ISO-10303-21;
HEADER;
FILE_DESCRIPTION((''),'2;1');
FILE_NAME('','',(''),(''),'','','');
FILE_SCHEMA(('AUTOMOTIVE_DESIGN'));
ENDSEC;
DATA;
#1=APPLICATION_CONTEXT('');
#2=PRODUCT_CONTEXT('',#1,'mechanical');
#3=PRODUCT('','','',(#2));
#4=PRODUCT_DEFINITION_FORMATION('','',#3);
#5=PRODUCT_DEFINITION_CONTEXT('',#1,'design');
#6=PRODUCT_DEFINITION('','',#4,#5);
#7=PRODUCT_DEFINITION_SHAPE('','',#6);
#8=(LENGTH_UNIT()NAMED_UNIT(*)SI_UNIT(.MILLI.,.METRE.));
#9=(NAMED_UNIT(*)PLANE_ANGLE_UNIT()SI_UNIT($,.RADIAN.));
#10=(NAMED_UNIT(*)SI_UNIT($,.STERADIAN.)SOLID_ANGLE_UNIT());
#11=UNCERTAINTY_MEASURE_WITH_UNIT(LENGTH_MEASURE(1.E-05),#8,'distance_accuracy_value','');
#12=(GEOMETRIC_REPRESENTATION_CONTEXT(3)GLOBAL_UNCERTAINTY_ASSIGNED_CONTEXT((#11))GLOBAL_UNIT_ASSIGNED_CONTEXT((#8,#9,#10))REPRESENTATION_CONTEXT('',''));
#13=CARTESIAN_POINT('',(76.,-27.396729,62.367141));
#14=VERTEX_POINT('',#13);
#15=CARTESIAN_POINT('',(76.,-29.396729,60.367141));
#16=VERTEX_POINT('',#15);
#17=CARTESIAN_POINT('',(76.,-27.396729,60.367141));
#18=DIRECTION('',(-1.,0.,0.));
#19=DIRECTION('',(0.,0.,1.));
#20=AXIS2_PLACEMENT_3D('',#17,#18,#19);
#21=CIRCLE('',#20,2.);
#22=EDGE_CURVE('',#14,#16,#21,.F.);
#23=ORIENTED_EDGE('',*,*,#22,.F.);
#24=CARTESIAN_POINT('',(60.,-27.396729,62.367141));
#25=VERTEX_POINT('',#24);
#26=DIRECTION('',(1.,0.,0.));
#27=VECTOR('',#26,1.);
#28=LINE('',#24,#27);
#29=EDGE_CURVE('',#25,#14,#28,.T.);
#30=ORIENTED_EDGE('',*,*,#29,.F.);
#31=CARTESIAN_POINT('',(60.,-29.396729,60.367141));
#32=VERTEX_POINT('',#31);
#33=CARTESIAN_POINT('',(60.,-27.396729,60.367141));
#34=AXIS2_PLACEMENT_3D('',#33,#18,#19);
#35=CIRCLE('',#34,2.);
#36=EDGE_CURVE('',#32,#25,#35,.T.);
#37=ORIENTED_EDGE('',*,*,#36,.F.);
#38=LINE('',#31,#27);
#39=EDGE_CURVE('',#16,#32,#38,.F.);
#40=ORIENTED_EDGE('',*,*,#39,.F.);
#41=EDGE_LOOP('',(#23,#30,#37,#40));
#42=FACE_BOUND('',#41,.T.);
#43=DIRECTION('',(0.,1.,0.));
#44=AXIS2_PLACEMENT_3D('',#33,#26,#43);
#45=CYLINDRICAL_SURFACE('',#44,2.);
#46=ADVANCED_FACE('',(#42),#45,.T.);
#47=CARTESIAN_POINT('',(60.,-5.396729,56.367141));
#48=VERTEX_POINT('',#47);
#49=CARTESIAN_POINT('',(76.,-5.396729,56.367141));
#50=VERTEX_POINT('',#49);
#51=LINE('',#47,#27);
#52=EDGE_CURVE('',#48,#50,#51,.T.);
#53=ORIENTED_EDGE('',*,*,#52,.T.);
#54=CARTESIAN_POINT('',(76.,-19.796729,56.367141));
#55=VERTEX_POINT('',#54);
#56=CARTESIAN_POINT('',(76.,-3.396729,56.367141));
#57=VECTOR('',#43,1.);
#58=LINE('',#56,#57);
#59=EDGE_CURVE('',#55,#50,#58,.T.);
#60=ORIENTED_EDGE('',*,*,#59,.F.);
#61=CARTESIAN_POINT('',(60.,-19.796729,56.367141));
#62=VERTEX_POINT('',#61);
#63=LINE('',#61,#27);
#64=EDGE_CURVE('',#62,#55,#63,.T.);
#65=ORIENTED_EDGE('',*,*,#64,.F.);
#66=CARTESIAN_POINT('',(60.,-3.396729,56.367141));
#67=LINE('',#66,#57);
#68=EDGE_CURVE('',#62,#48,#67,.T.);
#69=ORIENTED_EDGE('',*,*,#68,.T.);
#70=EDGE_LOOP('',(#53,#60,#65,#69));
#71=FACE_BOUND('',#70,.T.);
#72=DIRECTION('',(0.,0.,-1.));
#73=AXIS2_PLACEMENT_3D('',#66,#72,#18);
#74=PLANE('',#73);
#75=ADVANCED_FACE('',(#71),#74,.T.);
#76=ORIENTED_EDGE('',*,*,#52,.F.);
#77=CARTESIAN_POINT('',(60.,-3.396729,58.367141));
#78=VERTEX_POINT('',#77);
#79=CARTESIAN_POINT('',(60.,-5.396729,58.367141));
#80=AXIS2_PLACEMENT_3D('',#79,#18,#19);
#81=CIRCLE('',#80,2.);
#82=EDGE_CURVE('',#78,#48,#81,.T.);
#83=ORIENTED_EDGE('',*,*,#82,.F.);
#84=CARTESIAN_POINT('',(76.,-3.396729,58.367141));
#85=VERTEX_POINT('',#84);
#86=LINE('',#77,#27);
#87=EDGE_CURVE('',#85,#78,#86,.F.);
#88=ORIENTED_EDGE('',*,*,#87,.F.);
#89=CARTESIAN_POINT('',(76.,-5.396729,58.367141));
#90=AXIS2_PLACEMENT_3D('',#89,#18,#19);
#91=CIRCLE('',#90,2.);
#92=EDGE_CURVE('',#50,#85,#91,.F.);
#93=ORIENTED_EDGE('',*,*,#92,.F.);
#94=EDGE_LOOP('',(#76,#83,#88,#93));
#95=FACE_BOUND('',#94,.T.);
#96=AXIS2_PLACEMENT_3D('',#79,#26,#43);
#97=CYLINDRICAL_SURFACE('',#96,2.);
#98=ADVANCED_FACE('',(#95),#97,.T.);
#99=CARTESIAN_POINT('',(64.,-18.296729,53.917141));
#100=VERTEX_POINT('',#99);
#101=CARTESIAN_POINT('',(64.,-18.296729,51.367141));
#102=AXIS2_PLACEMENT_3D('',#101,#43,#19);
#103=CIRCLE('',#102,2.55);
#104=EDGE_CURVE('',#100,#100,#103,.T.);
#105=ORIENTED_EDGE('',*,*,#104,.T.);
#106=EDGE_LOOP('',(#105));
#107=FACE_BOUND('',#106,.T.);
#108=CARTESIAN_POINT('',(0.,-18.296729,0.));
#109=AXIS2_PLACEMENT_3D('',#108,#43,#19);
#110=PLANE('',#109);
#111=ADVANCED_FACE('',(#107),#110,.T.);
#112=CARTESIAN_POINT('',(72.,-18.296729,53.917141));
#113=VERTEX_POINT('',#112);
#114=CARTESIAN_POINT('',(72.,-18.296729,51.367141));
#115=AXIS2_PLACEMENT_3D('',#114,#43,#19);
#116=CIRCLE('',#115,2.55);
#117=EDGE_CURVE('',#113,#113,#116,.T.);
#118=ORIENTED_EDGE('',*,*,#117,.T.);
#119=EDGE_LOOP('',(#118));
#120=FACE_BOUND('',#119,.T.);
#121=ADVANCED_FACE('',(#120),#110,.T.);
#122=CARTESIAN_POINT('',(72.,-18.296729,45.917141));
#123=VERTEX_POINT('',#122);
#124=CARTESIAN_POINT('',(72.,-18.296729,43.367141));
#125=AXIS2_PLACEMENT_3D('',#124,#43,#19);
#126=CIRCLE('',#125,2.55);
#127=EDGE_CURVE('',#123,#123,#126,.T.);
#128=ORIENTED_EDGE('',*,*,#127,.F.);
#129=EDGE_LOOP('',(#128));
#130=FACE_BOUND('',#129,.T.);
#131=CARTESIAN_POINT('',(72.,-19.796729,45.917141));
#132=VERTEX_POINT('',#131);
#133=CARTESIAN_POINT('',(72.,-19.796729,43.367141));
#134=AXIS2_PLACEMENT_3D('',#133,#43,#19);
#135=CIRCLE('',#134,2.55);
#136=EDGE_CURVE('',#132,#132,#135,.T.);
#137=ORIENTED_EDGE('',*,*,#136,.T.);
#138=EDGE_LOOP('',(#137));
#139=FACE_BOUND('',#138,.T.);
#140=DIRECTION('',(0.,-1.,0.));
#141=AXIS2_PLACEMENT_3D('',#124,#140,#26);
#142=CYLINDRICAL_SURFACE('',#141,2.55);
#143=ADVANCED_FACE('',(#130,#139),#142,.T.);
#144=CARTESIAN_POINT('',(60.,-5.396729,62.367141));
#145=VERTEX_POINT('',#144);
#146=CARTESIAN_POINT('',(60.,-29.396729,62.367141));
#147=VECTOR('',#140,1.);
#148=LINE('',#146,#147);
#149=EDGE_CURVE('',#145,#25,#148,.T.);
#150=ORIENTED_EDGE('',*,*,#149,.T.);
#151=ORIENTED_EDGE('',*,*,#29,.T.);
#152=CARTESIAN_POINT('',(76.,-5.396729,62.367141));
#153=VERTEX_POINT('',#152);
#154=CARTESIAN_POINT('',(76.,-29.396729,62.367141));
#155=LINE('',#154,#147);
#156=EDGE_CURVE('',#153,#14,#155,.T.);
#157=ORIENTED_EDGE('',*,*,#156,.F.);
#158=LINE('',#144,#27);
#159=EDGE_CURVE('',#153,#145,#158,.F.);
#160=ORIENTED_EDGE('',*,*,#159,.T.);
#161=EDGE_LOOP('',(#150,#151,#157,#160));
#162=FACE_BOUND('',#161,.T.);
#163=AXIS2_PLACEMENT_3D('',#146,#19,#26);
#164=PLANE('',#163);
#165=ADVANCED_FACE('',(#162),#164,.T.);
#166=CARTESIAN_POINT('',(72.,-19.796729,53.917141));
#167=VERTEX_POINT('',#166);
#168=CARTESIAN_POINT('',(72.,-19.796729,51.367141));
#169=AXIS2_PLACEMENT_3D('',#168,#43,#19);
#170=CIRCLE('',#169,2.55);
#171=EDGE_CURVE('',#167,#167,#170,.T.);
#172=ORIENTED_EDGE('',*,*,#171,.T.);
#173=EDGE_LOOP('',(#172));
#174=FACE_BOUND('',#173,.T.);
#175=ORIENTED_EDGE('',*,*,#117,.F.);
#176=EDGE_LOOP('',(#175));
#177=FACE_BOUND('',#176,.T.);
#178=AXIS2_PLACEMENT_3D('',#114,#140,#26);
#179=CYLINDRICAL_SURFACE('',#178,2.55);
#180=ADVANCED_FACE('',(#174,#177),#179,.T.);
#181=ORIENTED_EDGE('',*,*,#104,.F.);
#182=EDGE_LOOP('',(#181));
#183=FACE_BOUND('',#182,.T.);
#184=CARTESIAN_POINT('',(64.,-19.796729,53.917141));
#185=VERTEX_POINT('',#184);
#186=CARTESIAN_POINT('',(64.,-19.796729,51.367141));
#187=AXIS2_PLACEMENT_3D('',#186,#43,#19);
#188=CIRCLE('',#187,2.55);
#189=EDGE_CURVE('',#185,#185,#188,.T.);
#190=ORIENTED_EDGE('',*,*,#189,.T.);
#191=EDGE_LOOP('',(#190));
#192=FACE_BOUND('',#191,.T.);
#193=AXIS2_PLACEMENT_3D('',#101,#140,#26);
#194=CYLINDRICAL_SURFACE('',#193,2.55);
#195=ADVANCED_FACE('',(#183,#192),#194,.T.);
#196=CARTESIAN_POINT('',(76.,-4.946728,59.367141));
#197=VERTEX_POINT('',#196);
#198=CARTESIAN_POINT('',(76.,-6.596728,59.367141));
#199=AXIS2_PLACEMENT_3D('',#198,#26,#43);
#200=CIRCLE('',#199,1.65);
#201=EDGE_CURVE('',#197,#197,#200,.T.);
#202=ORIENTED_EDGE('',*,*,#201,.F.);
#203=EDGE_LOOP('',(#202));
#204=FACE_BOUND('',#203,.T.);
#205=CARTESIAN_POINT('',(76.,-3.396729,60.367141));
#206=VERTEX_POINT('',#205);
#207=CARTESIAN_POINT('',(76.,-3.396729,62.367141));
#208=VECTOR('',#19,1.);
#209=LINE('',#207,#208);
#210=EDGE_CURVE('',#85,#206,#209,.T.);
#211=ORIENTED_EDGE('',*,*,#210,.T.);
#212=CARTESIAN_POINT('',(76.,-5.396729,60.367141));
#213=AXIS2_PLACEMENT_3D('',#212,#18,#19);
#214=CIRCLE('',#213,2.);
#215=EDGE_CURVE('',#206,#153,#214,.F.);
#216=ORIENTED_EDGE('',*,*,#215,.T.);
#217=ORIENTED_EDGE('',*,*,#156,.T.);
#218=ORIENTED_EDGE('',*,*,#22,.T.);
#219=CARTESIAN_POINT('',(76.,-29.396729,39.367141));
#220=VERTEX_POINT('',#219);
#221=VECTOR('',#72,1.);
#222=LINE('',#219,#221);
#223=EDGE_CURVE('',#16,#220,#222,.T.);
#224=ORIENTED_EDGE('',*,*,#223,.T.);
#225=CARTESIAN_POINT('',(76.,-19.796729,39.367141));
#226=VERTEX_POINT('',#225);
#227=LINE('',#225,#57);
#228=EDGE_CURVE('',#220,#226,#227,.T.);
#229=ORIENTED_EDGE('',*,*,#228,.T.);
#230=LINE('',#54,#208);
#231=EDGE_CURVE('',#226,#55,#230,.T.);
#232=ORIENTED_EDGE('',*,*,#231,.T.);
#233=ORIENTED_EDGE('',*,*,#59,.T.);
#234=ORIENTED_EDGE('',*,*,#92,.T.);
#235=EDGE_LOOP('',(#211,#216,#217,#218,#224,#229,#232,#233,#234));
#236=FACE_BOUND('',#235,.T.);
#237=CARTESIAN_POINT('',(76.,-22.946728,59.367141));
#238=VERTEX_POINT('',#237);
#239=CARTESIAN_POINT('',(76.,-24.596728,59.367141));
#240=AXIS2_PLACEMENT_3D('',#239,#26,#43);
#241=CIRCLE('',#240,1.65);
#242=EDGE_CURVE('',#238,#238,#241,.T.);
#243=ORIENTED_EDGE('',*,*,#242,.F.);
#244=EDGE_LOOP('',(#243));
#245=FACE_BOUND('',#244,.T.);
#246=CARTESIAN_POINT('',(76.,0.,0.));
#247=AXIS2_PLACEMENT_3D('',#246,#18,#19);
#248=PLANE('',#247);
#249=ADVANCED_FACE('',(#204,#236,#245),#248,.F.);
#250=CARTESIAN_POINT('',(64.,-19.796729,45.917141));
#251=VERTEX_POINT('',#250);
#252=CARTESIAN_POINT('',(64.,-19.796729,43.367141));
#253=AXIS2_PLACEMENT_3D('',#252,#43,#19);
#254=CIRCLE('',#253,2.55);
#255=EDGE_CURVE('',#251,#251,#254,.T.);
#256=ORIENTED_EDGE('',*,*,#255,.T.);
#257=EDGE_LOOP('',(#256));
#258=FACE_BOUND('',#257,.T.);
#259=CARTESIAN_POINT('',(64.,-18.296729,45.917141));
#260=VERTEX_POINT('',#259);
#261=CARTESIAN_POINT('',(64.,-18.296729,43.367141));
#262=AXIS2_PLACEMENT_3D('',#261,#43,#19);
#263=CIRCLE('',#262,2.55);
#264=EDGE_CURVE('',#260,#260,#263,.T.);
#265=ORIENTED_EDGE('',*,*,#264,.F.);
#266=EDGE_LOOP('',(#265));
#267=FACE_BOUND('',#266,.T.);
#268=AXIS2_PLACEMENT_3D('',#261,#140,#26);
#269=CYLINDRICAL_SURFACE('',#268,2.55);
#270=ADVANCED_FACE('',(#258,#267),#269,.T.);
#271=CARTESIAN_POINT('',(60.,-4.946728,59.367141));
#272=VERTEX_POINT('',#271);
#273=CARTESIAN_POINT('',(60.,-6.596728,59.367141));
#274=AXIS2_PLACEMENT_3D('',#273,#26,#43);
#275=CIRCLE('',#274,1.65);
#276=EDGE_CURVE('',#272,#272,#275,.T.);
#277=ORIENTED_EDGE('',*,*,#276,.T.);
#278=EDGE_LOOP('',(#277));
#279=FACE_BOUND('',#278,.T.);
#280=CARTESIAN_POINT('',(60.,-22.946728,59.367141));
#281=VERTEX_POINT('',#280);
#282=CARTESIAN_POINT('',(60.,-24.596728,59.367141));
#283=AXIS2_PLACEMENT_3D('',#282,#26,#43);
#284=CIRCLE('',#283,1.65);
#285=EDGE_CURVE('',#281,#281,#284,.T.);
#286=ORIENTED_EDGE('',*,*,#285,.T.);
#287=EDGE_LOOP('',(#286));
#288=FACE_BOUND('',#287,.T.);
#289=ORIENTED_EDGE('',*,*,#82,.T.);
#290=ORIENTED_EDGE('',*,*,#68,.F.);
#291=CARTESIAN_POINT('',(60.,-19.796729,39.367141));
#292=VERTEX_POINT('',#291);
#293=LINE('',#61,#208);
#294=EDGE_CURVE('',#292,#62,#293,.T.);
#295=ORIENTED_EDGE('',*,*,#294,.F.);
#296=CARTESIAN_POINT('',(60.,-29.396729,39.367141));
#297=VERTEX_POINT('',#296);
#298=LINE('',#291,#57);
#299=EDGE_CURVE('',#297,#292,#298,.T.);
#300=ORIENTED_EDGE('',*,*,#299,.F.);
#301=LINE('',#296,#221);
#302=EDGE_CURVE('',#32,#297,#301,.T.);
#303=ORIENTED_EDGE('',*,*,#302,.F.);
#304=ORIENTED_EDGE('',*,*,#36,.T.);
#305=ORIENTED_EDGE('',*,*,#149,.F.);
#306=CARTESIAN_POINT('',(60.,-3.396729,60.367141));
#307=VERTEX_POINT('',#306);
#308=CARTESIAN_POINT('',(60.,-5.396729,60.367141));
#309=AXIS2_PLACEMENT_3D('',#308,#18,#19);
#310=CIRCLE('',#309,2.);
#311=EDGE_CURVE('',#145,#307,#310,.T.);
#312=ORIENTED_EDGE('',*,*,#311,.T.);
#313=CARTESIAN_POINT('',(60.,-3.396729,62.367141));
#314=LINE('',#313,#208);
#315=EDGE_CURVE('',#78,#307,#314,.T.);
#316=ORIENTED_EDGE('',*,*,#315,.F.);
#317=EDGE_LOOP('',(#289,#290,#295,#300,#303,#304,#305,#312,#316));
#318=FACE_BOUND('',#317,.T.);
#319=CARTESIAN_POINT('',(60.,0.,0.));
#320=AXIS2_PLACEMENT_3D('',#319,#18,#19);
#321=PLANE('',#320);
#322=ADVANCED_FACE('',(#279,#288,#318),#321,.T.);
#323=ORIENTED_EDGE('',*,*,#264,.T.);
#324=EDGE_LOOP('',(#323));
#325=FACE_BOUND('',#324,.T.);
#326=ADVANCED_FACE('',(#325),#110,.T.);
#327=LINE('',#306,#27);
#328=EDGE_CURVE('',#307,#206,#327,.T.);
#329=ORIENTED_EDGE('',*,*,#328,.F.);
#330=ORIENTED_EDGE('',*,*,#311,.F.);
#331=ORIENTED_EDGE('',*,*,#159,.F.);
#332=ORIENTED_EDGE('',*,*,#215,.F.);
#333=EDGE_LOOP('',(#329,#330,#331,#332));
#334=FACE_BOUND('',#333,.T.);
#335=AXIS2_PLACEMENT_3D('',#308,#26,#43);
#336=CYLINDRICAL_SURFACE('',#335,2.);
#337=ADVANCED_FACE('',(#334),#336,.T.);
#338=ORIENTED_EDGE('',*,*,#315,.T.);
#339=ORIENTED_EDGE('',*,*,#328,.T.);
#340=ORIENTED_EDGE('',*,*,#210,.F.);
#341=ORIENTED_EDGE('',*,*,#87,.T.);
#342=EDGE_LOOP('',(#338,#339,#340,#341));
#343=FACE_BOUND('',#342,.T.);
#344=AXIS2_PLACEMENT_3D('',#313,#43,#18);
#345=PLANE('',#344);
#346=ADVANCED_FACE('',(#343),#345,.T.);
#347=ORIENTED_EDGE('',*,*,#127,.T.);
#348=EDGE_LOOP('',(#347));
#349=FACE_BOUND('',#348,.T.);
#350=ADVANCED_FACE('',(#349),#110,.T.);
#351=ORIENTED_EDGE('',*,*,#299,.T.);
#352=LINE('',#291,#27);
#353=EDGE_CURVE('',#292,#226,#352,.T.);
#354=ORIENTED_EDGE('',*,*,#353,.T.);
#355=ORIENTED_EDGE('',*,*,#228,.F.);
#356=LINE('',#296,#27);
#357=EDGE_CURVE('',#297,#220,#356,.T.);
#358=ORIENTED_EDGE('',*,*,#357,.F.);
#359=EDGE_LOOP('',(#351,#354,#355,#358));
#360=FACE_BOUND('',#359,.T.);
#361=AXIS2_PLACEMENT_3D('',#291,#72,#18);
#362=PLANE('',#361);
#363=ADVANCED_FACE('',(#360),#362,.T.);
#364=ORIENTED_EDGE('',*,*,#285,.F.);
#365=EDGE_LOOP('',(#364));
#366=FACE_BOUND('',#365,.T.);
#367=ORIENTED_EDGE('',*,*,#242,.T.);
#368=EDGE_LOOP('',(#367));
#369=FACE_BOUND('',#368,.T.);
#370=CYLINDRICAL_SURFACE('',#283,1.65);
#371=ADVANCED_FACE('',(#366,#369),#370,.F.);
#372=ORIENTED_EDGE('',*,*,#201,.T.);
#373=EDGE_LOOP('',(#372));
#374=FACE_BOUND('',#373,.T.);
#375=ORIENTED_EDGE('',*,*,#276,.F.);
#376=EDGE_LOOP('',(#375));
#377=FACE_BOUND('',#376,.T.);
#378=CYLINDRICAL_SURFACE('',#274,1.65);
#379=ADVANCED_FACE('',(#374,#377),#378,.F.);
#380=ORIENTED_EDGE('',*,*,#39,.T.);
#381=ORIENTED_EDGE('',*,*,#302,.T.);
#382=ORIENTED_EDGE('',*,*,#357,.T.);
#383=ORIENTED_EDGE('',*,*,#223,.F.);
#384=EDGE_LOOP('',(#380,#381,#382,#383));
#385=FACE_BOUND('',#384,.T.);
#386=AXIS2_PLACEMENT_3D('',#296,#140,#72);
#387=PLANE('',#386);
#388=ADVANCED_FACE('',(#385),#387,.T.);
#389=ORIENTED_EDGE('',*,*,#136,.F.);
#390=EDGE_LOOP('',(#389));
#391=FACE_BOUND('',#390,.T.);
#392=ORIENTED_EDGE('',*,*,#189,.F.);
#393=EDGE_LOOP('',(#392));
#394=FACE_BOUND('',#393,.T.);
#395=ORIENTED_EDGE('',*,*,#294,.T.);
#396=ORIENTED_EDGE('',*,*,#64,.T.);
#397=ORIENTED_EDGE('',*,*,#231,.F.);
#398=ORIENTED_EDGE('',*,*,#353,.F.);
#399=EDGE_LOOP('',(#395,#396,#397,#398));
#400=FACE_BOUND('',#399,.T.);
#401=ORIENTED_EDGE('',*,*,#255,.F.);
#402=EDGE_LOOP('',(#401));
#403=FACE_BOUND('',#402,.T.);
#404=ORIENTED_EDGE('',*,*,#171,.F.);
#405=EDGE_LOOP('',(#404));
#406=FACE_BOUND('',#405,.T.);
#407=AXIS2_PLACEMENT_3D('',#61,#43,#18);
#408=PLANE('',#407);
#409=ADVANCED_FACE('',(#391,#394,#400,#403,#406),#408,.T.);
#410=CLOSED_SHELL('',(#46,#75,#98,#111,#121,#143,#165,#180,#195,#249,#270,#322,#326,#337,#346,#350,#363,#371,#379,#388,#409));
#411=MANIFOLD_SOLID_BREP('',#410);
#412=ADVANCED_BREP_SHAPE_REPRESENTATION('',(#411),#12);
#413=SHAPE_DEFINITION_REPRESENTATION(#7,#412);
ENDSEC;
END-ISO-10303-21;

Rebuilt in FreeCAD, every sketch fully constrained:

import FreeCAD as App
import Part
import Sketcher

V = App.Vector


def edges_at(feature, points):
    """Names of the edges that pass closest to the given points."""
    edges = feature.Shape.Edges
    near = lambda p: min(range(len(edges)), key=lambda i: edges[i].distToShape(Part.Vertex(*p))[0])
    return sorted({f"Edge{near(p) + 1}" for p in points})


def add_polygon(sketch, points):
    """Adds a closed chain of lines whose ends are joined by coincident constraints."""
    first, n = sketch.GeometryCount, len(points)
    for a, b in zip(points, points[1:] + points[:1]):
        sketch.addGeometry(Part.LineSegment(App.Vector(*a, 0), App.Vector(*b, 0)), False)
    for i in range(n):
        sketch.addConstraint(Sketcher.Constraint("Coincident", first + i, 2, first + (i + 1) % n, 1))

doc = App.newDocument("Part")
params = doc.addObject("Spreadsheet::Sheet", "Params")
for row, (alias, value) in enumerate([
    ("sketch1_diameter", "3.3 mm"),
    ("sketch1_width", "26 mm"),
    ("sketch1_height", "23 mm"),
    ("sketch1_height2", "17 mm"),
    ("sketch1_width2", "9.6 mm"),
    ("pad1_length", "16 mm"),
    ("sketch2_diameter", "5.1 mm"),
    ("pad2_length", "1.5 mm"),
    ("fillet_radius", "2 mm"),
], start=1):
    params.set(f"A{row}", alias)
    params.set(f"B{row}", "=" + value)
    params.setAlias(f"B{row}", alias)

body = doc.addObject("PartDesign::Body", "Body")

# Sketch on YZ plane
sketch1 = doc.addObject("Sketcher::SketchObject", "Sketch")
body.addObject(sketch1)
sketch1.AttachmentSupport = (doc.YZ_Plane, [""])
sketch1.MapMode = "FlatFace"
sketch1.AttachmentOffset = App.Placement(V(0, 0, 76), App.Rotation())
add_polygon(sketch1, [(-29.396729, 62.367141), (-29.396729, 39.367141), (-19.796729, 39.367141), (-19.796729, 56.367141), (-3.396729, 56.367141), (-3.396729, 62.367141)])  # lines 0-5
sketch1.addGeometry(Part.Circle(V(-24.596728, 59.367141, 0), V(0, 0, 1), 1.65), False)  # 6
sketch1.addGeometry(Part.Circle(V(-6.596728, 59.367141, 0), V(0, 0, 1), 1.65), False)  # 7
sketch1.addConstraint(Sketcher.Constraint("Vertical", 0))
sketch1.addConstraint(Sketcher.Constraint("Horizontal", 1))
sketch1.addConstraint(Sketcher.Constraint("Vertical", 2))
sketch1.addConstraint(Sketcher.Constraint("Horizontal", 3))
sketch1.addConstraint(Sketcher.Constraint("Vertical", 4))
sketch1.addConstraint(Sketcher.Constraint("Horizontal", 5))
sketch1.addConstraint(Sketcher.Constraint("Equal", 6, 7))
sketch1.addConstraint(Sketcher.Constraint("Horizontal", 6, 3, 7, 3))
sketch1.addConstraint(Sketcher.Constraint("Diameter", 6, 3.3))
sketch1.addConstraint(Sketcher.Constraint("DistanceX", 5, 2, 5, 1, 26.0))
sketch1.addConstraint(Sketcher.Constraint("DistanceY", 0, 2, 0, 1, 23.0))
sketch1.addConstraint(Sketcher.Constraint("DistanceY", 2, 1, 2, 2, 17.0))
sketch1.addConstraint(Sketcher.Constraint("DistanceX", 1, 1, 1, 2, 9.6))
sketch1.addConstraint(Sketcher.Constraint("DistanceX", 6, 3, 7, 3, 18.0))
sketch1.addConstraint(Sketcher.Constraint("DistanceY", 0, 2, 6, 3, 20.0))
sketch1.addConstraint(Sketcher.Constraint("DistanceX", 0, 2, 6, 3, 4.8))
sketch1.addConstraint(Sketcher.Constraint("DistanceX", 6, 3, -1, 1, 24.596728))
sketch1.addConstraint(Sketcher.Constraint("DistanceY", -1, 1, 6, 3, 59.367141))
sketch1.setExpression("Constraints[14]", "Params.sketch1_diameter")
sketch1.setExpression("Constraints[15]", "Params.sketch1_width")
sketch1.setExpression("Constraints[16]", "Params.sketch1_height")
sketch1.setExpression("Constraints[17]", "Params.sketch1_height2")
sketch1.setExpression("Constraints[18]", "Params.sketch1_width2")
pad1 = doc.addObject("PartDesign::Pad", "Pad")
body.addObject(pad1)
pad1.Profile = sketch1
pad1.setExpression("Length", "Params.pad1_length")
pad1.Reversed = True

# Sketch on XZ plane
sketch2 = doc.addObject("Sketcher::SketchObject", "Sketch001")
body.addObject(sketch2)
sketch2.AttachmentSupport = (doc.XZ_Plane, [""])
sketch2.MapMode = "FlatFace"
sketch2.AttachmentOffset = App.Placement(V(0, 0, 19.796729), App.Rotation())
sketch2.addGeometry(Part.Circle(V(64, 51.367141, 0), V(0, 0, 1), 2.55), False)
sketch2.addGeometry(Part.Circle(V(64, 43.367141, 0), V(0, 0, 1), 2.55), False)
sketch2.addGeometry(Part.Circle(V(72, 43.367141, 0), V(0, 0, 1), 2.55), False)
sketch2.addGeometry(Part.Circle(V(72, 51.367141, 0), V(0, 0, 1), 2.55), False)
sketch2.addConstraint(Sketcher.Constraint("Equal", 0, 1))
sketch2.addConstraint(Sketcher.Constraint("Equal", 1, 2))
sketch2.addConstraint(Sketcher.Constraint("Equal", 2, 3))
sketch2.addConstraint(Sketcher.Constraint("Horizontal", 1, 3, 2, 3))
sketch2.addConstraint(Sketcher.Constraint("Horizontal", 0, 3, 3, 3))
sketch2.addConstraint(Sketcher.Constraint("Vertical", 0, 3, 1, 3))
sketch2.addConstraint(Sketcher.Constraint("Vertical", 2, 3, 3, 3))
sketch2.addConstraint(Sketcher.Constraint("Diameter", 0, 5.1))
sketch2.addConstraint(Sketcher.Constraint("DistanceX", -1, 1, 0, 3, 64.0))
sketch2.addConstraint(Sketcher.Constraint("DistanceX", -1, 1, 2, 3, 72.0))
sketch2.addConstraint(Sketcher.Constraint("DistanceY", 1, 3, 0, 3, 8.0))
sketch2.addConstraint(Sketcher.Constraint("DistanceY", -1, 1, 0, 3, 51.367141))
sketch2.setExpression("Constraints[7]", "Params.sketch2_diameter")
pad2 = doc.addObject("PartDesign::Pad", "Pad001")
body.addObject(pad2)
pad2.Profile = sketch2
pad2.setExpression("Length", "Params.pad2_length")
pad2.Reversed = True
doc.recompute()

fillet = doc.addObject("PartDesign::Fillet", "Fillet")
body.addObject(fillet)
fillet.Base = (pad2, edges_at(pad2, [(68, -29.397, 62.367), (68, -3.397, 62.367), (68, -3.397, 56.367)]))
fillet.setExpression("Radius", "Params.fillet_radius")

doc.recompute()
